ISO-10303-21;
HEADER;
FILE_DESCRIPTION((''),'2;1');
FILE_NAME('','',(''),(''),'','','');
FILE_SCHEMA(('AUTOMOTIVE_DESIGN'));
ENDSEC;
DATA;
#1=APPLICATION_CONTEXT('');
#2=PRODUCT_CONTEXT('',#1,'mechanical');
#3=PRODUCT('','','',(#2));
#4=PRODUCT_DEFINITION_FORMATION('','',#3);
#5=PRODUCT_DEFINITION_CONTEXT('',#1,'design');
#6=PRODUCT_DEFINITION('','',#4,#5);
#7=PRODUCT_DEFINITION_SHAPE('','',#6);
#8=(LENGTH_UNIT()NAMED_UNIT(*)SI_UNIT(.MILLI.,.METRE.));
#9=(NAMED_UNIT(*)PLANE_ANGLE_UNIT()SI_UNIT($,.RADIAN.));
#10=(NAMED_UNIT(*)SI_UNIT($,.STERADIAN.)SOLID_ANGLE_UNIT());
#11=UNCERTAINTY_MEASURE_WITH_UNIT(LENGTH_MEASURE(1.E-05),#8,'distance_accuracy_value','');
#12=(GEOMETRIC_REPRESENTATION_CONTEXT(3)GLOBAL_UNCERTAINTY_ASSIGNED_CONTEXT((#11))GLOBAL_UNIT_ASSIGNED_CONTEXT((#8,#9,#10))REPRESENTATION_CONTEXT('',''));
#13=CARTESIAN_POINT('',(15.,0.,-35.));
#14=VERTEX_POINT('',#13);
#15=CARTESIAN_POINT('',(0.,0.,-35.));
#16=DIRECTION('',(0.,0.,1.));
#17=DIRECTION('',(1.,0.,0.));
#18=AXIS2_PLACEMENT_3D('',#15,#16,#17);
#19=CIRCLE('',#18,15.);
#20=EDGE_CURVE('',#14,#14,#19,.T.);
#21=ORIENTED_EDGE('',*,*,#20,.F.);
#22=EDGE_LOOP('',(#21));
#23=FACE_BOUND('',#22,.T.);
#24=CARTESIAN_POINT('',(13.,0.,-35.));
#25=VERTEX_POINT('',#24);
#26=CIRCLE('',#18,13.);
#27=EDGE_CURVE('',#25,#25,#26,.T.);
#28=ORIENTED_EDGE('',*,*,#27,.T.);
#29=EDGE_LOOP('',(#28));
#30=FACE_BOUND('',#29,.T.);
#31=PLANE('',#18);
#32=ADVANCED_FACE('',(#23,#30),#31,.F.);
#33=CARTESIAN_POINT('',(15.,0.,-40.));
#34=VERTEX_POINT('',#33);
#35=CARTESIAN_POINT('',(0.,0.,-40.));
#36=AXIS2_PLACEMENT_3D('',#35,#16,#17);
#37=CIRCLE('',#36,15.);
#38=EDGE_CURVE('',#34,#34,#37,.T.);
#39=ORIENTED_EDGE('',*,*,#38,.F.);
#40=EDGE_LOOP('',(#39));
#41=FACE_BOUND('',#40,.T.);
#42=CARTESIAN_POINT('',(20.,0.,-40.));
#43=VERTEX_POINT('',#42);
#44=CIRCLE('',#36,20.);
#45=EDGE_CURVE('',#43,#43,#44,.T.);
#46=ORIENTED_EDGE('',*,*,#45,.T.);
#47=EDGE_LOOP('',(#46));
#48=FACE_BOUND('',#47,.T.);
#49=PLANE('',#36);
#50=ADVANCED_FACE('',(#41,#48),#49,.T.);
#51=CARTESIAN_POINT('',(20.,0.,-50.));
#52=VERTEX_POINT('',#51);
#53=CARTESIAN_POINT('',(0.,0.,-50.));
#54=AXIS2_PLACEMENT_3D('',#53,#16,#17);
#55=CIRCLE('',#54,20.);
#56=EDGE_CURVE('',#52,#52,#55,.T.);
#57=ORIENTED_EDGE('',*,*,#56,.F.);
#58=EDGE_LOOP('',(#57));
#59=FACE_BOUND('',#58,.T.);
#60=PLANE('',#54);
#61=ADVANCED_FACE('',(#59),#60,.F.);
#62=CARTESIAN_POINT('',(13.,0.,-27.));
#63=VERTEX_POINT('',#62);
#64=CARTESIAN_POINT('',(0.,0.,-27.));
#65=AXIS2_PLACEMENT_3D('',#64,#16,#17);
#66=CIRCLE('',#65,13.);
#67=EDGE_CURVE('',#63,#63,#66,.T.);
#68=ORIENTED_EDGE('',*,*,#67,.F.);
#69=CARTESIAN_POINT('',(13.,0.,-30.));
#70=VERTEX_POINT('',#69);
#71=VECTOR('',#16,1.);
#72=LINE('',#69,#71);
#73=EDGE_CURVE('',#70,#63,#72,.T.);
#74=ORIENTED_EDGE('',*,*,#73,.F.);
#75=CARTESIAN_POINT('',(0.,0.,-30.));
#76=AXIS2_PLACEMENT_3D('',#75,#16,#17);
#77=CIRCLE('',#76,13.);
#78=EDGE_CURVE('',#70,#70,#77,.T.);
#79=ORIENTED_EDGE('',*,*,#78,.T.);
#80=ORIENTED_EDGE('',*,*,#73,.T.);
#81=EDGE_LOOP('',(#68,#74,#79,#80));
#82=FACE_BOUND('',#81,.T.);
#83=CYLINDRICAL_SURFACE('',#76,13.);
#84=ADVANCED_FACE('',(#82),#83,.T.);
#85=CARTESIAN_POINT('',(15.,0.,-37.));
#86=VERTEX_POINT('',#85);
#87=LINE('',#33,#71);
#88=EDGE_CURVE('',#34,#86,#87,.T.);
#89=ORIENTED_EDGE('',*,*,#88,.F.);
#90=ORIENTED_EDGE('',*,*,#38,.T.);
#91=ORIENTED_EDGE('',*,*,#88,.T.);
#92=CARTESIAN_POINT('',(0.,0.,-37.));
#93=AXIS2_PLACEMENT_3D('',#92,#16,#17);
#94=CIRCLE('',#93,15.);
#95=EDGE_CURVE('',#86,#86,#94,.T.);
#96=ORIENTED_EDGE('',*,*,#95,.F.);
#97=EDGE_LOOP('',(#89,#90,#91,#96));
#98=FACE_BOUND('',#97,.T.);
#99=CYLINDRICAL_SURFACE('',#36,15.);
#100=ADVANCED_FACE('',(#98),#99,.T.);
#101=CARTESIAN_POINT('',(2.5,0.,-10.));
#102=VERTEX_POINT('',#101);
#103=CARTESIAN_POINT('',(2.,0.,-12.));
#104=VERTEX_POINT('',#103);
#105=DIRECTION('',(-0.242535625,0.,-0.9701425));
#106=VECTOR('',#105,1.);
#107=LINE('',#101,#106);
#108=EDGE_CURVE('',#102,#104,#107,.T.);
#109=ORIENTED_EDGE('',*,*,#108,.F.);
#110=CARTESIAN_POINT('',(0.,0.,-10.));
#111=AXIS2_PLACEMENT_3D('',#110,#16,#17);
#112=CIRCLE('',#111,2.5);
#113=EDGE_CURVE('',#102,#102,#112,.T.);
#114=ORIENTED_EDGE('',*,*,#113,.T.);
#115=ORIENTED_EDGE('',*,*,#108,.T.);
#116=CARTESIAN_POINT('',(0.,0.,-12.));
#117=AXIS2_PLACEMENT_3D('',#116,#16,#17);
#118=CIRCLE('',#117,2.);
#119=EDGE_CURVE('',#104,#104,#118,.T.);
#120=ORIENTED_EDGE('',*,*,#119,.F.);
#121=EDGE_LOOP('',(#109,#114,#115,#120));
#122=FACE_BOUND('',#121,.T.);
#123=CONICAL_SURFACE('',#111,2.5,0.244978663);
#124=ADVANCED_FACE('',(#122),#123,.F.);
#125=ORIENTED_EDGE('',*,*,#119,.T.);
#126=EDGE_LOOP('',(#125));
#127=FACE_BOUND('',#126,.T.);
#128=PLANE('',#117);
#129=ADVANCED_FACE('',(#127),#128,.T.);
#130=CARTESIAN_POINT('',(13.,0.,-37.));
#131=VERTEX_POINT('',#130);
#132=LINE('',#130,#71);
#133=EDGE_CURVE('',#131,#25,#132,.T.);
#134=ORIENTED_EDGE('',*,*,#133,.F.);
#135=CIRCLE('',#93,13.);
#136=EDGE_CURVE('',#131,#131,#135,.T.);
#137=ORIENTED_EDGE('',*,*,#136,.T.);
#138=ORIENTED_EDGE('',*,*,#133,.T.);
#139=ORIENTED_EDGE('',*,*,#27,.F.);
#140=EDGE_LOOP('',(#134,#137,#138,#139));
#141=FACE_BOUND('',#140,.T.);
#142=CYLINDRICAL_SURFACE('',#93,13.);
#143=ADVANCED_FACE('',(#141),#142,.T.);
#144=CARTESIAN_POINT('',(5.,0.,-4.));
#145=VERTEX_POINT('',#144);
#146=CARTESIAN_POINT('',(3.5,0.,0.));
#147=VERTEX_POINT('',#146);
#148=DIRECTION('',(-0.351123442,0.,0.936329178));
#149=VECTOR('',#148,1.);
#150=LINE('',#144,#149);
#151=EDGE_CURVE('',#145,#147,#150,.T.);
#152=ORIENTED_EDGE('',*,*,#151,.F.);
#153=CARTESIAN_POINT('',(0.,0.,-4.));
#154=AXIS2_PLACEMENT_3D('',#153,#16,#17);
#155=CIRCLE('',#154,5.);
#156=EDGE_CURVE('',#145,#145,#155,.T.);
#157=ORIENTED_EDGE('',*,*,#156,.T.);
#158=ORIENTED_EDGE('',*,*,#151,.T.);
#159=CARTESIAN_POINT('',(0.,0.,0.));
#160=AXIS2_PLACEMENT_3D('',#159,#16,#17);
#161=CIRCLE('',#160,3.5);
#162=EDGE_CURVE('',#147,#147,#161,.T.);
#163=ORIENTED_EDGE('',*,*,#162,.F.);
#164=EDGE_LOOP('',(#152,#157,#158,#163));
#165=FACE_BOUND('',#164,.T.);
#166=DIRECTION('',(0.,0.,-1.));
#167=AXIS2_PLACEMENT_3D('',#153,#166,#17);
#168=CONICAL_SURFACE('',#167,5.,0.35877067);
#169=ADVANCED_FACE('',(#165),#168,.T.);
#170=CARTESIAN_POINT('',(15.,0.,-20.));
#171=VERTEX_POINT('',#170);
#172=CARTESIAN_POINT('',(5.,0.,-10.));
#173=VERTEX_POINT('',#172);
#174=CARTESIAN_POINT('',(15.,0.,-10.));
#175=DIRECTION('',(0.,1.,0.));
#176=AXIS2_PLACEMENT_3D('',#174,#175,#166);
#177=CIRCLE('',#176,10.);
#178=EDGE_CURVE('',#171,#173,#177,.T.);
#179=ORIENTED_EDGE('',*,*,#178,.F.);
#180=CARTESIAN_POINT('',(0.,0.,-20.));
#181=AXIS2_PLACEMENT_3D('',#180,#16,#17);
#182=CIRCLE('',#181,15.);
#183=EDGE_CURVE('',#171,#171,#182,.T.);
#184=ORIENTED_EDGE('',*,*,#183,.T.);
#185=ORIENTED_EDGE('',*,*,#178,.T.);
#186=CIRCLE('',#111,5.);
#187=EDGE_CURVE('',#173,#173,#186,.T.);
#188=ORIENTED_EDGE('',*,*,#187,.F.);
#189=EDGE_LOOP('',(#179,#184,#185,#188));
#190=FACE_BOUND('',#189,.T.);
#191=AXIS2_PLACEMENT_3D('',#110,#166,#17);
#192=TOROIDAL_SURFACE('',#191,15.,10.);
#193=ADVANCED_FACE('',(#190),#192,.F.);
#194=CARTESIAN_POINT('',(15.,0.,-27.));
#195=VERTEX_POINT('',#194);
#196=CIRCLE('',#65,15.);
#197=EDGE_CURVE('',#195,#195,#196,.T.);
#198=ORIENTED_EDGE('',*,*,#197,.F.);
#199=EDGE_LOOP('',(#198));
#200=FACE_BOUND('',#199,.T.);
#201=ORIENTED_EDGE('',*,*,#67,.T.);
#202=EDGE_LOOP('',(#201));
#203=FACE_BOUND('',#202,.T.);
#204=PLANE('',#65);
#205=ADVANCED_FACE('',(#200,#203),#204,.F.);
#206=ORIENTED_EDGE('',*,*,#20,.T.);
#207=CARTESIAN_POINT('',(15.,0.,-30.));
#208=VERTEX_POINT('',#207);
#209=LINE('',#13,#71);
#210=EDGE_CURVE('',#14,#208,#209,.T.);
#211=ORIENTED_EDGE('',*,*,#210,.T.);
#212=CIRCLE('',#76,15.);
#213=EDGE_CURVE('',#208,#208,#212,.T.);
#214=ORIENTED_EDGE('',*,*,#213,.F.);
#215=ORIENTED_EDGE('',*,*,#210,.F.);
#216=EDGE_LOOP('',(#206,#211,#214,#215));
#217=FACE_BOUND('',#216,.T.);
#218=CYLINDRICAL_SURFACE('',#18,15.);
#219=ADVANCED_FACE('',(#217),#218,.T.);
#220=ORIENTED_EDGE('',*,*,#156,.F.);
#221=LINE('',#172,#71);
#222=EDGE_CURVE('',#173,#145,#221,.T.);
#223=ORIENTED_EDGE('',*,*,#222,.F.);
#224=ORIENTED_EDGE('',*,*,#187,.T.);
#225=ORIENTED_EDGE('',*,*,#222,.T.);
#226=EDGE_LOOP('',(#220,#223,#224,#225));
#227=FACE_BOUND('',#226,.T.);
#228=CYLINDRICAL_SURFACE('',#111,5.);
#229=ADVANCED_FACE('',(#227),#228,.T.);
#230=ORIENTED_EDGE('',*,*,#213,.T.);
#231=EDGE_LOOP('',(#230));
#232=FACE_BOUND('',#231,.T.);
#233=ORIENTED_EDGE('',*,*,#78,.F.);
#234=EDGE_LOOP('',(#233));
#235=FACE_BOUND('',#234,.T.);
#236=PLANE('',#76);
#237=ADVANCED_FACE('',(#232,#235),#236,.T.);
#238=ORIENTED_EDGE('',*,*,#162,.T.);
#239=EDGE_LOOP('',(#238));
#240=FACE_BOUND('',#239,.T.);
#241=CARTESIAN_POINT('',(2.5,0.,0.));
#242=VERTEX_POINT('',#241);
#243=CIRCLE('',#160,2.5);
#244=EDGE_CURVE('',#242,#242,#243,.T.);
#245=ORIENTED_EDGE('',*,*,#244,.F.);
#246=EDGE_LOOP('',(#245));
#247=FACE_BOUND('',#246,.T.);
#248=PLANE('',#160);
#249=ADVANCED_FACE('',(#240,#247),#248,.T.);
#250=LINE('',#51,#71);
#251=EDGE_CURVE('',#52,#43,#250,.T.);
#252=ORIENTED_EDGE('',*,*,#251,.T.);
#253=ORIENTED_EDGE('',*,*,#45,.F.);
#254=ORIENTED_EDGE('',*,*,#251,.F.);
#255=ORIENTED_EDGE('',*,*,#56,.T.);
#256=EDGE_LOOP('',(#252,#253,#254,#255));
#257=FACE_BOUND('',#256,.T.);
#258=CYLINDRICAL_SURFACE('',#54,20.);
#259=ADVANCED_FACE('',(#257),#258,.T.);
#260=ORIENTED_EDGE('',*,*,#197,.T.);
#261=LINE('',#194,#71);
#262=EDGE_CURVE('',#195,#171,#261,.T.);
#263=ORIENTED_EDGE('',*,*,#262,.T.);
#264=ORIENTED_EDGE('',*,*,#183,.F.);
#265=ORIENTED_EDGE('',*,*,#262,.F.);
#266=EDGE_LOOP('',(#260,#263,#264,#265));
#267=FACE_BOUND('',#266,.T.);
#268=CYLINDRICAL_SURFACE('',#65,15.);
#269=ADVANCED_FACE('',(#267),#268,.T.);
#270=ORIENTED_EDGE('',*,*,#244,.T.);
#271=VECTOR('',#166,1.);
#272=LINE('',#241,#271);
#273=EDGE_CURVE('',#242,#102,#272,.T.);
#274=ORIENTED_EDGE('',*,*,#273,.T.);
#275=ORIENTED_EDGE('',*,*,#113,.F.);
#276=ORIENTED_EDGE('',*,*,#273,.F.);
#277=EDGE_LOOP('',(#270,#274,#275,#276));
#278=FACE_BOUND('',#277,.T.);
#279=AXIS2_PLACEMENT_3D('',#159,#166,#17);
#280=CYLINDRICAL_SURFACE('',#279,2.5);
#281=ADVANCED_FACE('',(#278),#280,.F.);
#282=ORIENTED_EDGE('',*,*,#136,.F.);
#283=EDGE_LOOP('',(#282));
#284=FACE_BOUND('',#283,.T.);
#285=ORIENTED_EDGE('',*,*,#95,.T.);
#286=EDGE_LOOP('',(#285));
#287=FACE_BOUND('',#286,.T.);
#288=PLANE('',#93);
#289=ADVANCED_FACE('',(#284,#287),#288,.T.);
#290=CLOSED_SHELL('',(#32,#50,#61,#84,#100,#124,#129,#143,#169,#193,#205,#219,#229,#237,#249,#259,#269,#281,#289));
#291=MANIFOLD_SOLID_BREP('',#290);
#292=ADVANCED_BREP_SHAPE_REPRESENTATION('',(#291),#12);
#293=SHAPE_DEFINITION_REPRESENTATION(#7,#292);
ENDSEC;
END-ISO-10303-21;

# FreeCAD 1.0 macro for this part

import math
import FreeCAD as App
import Part
import Sketcher

V = App.Vector
Q = App.Units.Quantity

doc = App.newDocument("Part")
body = doc.addObject("PartDesign::Body", "Body")

sketch1 = body.newObject("Sketcher::SketchObject", "Sketch")
sketch1.AttachmentSupport = (doc.getObject("XZ_Plane"), [""])
sketch1.MapMode = "FlatFace"
sketch1.addGeometry([
    Part.LineSegment(V(3.5, 0, 0), V(2.5, 0, 0)),
    Part.LineSegment(V(2.5, 0, 0), V(2.5, -10, 0)),
    Part.LineSegment(V(2.5, -10, 0), V(2, -12, 0)),
    Part.LineSegment(V(2, -12, 0), V(0, -12, 0)),
    Part.LineSegment(V(0, -12, 0), V(0, -50, 0)),
    Part.LineSegment(V(0, -50, 0), V(20, -50, 0)),
    Part.LineSegment(V(20, -50, 0), V(20, -40, 0)),
    Part.LineSegment(V(20, -40, 0), V(15, -40, 0)),
    Part.LineSegment(V(15, -40, 0), V(15, -37, 0)),
    Part.LineSegment(V(15, -37, 0), V(13, -37, 0)),
    Part.LineSegment(V(13, -37, 0), V(13, -35, 0)),
    Part.LineSegment(V(13, -35, 0), V(15, -35, 0)),
    Part.LineSegment(V(15, -35, 0), V(15, -30, 0)),
    Part.LineSegment(V(15, -30, 0), V(13, -30, 0)),
    Part.LineSegment(V(13, -30, 0), V(13, -27, 0)),
    Part.LineSegment(V(13, -27, 0), V(15, -27, 0)),
    Part.LineSegment(V(15, -27, 0), V(15, -20, 0)),
    Part.ArcOfCircle(Part.Circle(V(15, -10, 0), V(0, 0, 1), 10), math.radians(180), math.radians(270)),
    Part.LineSegment(V(5, -10, 0), V(5, -4, 0)),
    Part.LineSegment(V(5, -4, 0), V(3.5, 0, 0)),
], False)
sketch1.addConstraint([
    Sketcher.Constraint("Coincident", 0, 2, 1, 1),
    Sketcher.Constraint("Coincident", 1, 2, 2, 1),
    Sketcher.Constraint("Coincident", 2, 2, 3, 1),
    Sketcher.Constraint("Coincident", 3, 2, 4, 1),
    Sketcher.Constraint("Coincident", 4, 2, 5, 1),
    Sketcher.Constraint("Coincident", 5, 2, 6, 1),
    Sketcher.Constraint("Coincident", 6, 2, 7, 1),
    Sketcher.Constraint("Coincident", 7, 2, 8, 1),
    Sketcher.Constraint("Coincident", 8, 2, 9, 1),
    Sketcher.Constraint("Coincident", 9, 2, 10, 1),
    Sketcher.Constraint("Coincident", 10, 2, 11, 1),
    Sketcher.Constraint("Coincident", 11, 2, 12, 1),
    Sketcher.Constraint("Coincident", 12, 2, 13, 1),
    Sketcher.Constraint("Coincident", 13, 2, 14, 1),
    Sketcher.Constraint("Coincident", 14, 2, 15, 1),
    Sketcher.Constraint("Coincident", 15, 2, 16, 1),
    Sketcher.Constraint("Coincident", 16, 2, 17, 2),
    Sketcher.Constraint("Tangent", 17, 1, 18, 1),
    Sketcher.Constraint("Coincident", 18, 2, 19, 1),
    Sketcher.Constraint("Coincident", 19, 2, 0, 1),
    Sketcher.Constraint("Horizontal", 0),
    Sketcher.Constraint("Vertical", 1),
    Sketcher.Constraint("Horizontal", 3),
    Sketcher.Constraint("Vertical", 4),
    Sketcher.Constraint("Horizontal", 5),
    Sketcher.Constraint("Vertical", 6),
    Sketcher.Constraint("Horizontal", 7),
    Sketcher.Constraint("Vertical", 8),
    Sketcher.Constraint("Horizontal", 9),
    Sketcher.Constraint("Vertical", 10),
    Sketcher.Constraint("Horizontal", 11),
    Sketcher.Constraint("Vertical", 12),
    Sketcher.Constraint("Horizontal", 13),
    Sketcher.Constraint("Vertical", 14),
    Sketcher.Constraint("Horizontal", 15),
    Sketcher.Constraint("Vertical", 16),
    Sketcher.Constraint("Vertical", 18),
    Sketcher.Constraint("PointOnObject", 0, 2, -1),
    Sketcher.Constraint("PointOnObject", 3, 2, -2),
    Sketcher.Constraint("Horizontal", 17, 3, 1, 2),
    Sketcher.Constraint("Vertical", 17, 3, 7, 2),
    Sketcher.Constraint("Vertical", 8, 2, 11, 2),
    Sketcher.Constraint("Vertical", 10, 2, 13, 2),
    Sketcher.Constraint("Vertical", 12, 2, 15, 2),
    Sketcher.Constraint("Equal", 3, 9),
    Sketcher.Constraint("Equal", 1, 6),
    Sketcher.Constraint("Equal", 15, 10),
    Sketcher.Constraint("Equal", 7, 12),
    Sketcher.Constraint("Equal", 8, 14),
    Sketcher.Constraint("Radius", 17, Q("10 mm")),
    Sketcher.Constraint("DistanceX", 0, 2, 0, 1, Q("1 mm")),
    Sketcher.Constraint("DistanceX", 3, 2, 3, 1, Q("2 mm")),
    Sketcher.Constraint("DistanceX", 5, 1, 5, 2, Q("20 mm")),
    Sketcher.Constraint("DistanceX", 7, 2, 7, 1, Q("5 mm")),
    Sketcher.Constraint("DistanceY", 1, 2, 1, 1, Q("10 mm")),
    Sketcher.Constraint("DistanceY", 4, 2, 4, 1, Q("38 mm")),
    Sketcher.Constraint("DistanceY", 8, 1, 8, 2, Q("3 mm")),
    Sketcher.Constraint("DistanceY", 16, 1, 16, 2, Q("7 mm")),
    Sketcher.Constraint("DistanceY", 18, 1, 18, 2, Q("6 mm")),
    Sketcher.Constraint("DistanceX", -1, 1, 0, 2, Q("2.5 mm")),
])
revolution = body.newObject("PartDesign::Revolution", "Revolution")
revolution.Profile = sketch1
revolution.ReferenceAxis = (sketch1, ["V_Axis"])
revolution.Angle = 360

doc.recompute()
